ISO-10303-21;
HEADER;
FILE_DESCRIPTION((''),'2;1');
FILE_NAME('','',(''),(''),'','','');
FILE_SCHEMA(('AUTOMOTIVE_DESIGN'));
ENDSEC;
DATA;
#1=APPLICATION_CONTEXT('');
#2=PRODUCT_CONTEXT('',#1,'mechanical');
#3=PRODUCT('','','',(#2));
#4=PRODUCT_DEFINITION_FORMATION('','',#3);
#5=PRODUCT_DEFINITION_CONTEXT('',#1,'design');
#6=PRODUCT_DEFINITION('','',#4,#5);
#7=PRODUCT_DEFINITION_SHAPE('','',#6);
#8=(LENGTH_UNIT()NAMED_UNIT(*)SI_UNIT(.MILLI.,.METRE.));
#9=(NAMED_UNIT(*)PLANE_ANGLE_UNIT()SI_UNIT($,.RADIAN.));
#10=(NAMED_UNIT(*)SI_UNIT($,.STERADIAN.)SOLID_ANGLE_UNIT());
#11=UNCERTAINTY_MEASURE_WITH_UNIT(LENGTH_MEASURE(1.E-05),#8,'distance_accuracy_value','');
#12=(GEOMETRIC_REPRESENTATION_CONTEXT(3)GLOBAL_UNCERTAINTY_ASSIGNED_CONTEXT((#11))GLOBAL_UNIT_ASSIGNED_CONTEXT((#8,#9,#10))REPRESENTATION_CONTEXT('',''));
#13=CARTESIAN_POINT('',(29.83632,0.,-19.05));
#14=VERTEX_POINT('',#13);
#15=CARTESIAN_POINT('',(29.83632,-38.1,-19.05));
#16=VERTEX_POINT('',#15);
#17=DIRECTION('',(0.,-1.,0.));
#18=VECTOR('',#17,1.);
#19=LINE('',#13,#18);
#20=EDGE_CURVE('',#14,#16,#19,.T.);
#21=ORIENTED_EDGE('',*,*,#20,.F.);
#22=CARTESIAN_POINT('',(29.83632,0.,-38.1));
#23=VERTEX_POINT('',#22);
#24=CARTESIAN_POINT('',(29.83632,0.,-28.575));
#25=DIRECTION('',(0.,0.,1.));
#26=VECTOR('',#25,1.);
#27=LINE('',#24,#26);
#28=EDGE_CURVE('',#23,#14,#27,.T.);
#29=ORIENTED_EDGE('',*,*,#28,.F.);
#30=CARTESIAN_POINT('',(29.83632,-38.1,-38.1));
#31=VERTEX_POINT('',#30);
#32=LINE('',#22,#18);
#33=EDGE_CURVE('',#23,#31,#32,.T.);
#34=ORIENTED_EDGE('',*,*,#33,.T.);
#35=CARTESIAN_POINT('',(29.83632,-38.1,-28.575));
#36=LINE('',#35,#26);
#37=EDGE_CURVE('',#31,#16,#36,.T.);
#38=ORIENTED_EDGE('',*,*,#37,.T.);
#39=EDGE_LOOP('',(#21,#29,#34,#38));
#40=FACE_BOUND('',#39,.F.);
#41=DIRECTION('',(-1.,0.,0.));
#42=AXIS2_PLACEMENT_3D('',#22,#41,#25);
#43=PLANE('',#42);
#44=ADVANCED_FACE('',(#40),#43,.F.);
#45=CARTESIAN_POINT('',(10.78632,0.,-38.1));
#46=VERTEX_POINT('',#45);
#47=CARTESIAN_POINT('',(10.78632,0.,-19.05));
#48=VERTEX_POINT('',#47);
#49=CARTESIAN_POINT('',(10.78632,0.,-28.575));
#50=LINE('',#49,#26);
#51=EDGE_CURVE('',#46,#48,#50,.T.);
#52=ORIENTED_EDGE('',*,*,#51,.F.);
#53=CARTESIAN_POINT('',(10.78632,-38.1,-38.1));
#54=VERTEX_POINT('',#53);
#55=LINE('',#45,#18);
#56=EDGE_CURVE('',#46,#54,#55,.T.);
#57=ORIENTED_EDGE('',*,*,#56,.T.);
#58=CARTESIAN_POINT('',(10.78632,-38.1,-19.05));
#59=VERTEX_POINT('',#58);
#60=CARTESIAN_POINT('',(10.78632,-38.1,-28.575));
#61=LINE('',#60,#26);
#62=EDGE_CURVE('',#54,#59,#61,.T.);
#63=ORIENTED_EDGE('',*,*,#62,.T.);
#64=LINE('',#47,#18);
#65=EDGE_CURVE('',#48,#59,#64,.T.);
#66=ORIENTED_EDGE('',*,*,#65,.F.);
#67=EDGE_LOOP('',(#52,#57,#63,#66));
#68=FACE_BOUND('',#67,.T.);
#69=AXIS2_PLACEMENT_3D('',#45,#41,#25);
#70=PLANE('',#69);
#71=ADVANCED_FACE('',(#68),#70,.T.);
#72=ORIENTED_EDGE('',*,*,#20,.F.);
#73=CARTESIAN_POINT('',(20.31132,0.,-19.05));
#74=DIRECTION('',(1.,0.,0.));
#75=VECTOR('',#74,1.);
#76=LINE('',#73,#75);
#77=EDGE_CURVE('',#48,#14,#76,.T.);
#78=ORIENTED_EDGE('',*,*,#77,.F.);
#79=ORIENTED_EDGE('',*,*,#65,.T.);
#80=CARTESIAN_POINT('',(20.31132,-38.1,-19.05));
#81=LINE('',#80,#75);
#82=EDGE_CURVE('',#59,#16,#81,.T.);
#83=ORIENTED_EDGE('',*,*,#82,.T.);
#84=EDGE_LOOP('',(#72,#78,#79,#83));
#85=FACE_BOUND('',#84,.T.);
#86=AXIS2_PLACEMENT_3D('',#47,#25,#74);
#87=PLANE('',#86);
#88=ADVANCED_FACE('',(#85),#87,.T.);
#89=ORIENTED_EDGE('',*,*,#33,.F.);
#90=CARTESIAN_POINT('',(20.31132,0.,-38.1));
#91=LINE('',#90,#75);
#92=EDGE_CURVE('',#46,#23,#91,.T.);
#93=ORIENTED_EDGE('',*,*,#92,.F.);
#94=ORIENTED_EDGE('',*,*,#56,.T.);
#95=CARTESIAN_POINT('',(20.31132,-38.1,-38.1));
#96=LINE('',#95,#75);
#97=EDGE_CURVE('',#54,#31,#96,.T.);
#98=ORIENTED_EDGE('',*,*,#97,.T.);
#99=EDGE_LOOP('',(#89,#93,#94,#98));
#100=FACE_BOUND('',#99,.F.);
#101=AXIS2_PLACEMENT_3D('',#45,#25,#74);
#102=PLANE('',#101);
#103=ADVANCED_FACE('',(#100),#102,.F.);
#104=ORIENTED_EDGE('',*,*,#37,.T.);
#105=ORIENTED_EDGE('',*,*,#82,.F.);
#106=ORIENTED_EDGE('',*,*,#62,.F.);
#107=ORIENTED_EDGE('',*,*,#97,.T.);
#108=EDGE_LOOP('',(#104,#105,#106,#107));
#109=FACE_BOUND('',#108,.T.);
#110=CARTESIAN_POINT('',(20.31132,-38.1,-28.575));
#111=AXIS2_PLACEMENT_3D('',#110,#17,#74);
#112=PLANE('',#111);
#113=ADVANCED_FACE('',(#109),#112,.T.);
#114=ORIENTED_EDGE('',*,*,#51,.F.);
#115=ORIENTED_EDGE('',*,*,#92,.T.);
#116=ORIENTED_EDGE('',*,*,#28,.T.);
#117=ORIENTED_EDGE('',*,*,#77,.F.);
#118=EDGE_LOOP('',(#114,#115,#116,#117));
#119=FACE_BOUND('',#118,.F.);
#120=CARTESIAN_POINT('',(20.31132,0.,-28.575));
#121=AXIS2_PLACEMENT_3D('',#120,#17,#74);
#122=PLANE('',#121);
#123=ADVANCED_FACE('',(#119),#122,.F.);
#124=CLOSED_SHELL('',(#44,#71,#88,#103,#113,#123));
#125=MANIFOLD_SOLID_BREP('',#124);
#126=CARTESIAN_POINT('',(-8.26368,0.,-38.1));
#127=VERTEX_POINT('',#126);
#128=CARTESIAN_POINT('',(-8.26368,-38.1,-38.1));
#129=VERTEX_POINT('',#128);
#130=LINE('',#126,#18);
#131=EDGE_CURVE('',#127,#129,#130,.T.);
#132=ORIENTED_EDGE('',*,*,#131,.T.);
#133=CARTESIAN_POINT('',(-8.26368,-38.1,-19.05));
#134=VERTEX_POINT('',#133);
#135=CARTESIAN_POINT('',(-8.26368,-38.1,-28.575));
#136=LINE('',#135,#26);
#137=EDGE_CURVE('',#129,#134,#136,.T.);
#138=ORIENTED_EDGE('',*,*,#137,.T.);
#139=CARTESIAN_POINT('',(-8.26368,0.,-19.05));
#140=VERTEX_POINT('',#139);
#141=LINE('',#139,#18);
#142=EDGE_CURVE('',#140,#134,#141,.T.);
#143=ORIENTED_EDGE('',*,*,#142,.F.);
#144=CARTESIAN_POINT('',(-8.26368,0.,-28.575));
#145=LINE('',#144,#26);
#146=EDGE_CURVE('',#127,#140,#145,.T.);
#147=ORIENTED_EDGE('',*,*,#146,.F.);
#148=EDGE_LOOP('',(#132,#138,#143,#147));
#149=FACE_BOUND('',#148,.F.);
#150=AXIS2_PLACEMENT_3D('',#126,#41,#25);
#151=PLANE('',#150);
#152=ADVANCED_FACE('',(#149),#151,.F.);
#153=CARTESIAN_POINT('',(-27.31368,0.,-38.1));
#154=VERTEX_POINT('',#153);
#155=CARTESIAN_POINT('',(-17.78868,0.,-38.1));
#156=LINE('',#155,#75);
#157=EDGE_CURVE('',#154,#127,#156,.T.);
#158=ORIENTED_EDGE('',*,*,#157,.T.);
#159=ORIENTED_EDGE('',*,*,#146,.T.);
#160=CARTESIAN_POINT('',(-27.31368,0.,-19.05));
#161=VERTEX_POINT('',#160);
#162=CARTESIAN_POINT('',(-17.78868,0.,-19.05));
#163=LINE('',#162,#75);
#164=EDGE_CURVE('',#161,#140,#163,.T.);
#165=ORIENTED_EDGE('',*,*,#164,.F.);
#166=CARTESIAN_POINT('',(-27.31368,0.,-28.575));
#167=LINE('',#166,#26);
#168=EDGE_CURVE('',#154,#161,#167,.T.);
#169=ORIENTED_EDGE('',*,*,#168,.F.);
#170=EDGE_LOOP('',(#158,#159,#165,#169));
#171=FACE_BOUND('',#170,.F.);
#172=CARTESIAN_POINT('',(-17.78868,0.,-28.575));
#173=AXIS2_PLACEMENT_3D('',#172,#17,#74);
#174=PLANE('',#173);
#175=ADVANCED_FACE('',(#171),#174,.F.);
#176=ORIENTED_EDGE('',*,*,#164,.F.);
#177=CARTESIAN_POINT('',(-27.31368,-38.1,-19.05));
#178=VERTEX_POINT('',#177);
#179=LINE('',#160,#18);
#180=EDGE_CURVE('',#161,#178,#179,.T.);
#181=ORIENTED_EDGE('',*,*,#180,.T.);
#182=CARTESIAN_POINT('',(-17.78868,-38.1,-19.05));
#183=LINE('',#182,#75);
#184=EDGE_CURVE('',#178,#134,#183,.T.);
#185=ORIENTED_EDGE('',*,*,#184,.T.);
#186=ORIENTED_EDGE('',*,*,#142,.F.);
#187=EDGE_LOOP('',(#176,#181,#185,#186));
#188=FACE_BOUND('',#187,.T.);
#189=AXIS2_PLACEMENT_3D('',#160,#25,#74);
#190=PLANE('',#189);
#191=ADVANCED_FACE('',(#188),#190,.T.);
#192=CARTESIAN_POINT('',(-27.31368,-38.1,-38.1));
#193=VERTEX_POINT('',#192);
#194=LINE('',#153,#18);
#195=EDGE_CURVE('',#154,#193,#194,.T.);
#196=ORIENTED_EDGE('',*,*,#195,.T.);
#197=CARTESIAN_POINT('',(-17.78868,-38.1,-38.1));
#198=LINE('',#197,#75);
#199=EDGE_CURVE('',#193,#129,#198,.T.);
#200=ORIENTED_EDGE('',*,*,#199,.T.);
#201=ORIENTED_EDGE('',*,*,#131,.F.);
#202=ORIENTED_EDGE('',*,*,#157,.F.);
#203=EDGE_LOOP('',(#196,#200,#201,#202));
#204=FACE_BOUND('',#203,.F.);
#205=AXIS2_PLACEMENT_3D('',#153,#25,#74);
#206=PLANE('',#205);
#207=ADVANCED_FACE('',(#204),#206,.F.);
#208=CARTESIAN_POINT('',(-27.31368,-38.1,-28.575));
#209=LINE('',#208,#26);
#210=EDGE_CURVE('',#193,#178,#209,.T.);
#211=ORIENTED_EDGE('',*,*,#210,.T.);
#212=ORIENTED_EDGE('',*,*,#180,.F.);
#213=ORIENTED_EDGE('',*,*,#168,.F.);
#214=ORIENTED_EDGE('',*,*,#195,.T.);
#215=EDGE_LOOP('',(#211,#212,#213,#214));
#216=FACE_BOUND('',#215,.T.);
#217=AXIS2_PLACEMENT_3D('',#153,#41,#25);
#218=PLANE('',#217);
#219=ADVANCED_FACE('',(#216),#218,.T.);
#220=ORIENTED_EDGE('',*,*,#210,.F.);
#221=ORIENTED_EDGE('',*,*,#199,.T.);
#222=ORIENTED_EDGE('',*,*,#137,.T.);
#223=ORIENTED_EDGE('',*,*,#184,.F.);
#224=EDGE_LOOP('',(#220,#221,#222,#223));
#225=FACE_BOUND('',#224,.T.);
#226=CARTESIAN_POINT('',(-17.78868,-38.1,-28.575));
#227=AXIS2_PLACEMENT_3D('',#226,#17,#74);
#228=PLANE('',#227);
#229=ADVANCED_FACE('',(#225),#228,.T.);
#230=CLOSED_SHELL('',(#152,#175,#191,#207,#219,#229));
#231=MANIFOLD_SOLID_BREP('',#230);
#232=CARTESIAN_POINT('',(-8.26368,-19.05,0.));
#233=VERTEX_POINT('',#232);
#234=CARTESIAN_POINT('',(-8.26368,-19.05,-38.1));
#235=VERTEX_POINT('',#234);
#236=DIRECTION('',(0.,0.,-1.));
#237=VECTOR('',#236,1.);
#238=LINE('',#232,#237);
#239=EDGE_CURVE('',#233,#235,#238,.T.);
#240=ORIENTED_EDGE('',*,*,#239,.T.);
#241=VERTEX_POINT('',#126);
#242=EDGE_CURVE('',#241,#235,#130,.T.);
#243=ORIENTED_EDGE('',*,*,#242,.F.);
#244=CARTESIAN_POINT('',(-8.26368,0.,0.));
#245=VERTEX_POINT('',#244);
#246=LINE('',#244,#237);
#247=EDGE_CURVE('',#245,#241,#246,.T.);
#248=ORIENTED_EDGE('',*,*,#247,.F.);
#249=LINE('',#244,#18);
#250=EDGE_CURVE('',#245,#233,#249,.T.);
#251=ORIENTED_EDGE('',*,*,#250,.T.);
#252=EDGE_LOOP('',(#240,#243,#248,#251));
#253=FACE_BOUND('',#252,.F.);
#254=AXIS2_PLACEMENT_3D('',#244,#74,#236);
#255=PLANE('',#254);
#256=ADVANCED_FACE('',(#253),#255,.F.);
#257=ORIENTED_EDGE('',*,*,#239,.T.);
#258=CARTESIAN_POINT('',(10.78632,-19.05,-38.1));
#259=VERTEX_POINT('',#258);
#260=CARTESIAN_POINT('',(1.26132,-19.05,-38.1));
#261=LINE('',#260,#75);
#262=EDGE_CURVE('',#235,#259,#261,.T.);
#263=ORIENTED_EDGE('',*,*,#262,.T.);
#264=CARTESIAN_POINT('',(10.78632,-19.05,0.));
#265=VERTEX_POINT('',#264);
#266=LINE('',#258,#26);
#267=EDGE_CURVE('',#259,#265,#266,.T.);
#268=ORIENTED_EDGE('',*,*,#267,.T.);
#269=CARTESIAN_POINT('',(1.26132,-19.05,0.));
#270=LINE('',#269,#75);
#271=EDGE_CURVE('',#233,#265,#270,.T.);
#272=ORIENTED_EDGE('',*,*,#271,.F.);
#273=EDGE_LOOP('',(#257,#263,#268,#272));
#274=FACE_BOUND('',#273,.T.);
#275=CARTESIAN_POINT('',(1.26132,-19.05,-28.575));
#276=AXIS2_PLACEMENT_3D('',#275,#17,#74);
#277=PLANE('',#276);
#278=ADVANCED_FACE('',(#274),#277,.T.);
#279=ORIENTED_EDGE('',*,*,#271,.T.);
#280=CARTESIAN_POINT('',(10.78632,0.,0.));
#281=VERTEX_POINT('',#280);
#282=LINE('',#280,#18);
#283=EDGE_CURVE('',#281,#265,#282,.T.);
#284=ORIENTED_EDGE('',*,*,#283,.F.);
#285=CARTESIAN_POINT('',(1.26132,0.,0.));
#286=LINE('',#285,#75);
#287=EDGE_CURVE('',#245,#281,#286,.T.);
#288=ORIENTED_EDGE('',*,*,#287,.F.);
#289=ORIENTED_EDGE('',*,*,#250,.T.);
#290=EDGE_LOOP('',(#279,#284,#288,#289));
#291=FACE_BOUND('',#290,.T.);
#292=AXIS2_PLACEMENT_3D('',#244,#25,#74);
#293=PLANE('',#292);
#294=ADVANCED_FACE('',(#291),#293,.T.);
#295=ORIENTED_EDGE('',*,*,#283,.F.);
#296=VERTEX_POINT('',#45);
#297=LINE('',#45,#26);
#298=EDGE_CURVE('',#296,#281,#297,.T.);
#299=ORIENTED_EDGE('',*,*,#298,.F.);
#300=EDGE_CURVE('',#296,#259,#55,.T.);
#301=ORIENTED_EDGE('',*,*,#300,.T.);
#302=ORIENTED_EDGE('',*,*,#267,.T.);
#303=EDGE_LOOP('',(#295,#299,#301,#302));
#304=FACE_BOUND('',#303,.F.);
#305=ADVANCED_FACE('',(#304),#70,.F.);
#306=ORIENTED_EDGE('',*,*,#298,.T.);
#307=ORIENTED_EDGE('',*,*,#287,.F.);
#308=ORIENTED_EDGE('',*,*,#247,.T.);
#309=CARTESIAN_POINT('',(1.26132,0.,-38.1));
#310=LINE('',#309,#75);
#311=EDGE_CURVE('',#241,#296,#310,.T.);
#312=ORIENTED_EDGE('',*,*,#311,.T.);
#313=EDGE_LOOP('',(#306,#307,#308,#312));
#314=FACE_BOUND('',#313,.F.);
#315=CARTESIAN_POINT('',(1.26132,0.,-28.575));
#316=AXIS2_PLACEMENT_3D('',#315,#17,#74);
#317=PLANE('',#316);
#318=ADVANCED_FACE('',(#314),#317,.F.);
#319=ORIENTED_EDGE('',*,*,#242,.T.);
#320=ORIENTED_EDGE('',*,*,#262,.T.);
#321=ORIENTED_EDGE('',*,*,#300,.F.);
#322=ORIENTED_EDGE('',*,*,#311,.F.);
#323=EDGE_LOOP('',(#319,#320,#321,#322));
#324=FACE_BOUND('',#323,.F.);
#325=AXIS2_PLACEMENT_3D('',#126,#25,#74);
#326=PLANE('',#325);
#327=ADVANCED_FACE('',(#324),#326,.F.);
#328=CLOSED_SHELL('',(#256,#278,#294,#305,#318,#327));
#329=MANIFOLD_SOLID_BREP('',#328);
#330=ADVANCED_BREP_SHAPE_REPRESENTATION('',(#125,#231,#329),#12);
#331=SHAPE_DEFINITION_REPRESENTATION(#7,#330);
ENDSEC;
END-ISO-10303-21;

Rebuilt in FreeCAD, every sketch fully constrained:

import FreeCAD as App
import Part
import Sketcher

V = App.Vector
Q = App.Units.Quantity

doc = App.newDocument("Part")
params = doc.addObject("Spreadsheet::Sheet", "Params")
for row, (alias, value) in enumerate([
    ("sketch1_width", "0.75 in"),
    ("pad1_length", "1.5 in"),
    ("sketch2_height", "1.5 in"),
    ("sketch2_width", "0.75 in"),
    ("pad2_length", "0.75 in"),
], start=1):
    params.set(f"A{row}", alias)
    params.set(f"B{row}", "=" + value)
    params.setAlias(f"B{row}", alias)

body = doc.addObject("PartDesign::Body", "Body")
body.AllowCompound = True

sketch1 = doc.addObject("Sketcher::SketchObject", "Sketch")
body.addObject(sketch1)
sketch1.AttachmentSupport = (doc.XZ_Plane, [""])
sketch1.MapMode = "FlatFace"
sketch1.addGeometry([
    Part.LineSegment(V(-27, -19, 0), V(-27, -38, 0)),
    Part.LineSegment(V(-27, -38, 0), V(-8, -38, 0)),
    Part.LineSegment(V(-8, -38, 0), V(-8, -19, 0)),
    Part.LineSegment(V(-8, -19, 0), V(-27, -19, 0)),
    Part.LineSegment(V(11, -19, 0), V(11, -38, 0)),
    Part.LineSegment(V(11, -38, 0), V(30, -38, 0)),
    Part.LineSegment(V(30, -38, 0), V(30, -19, 0)),
    Part.LineSegment(V(30, -19, 0), V(11, -19, 0)),
], False)
sketch1.addConstraint([
    Sketcher.Constraint("Coincident", 0, 2, 1, 1),
    Sketcher.Constraint("Coincident", 1, 2, 2, 1),
    Sketcher.Constraint("Coincident", 2, 2, 3, 1),
    Sketcher.Constraint("Coincident", 3, 2, 0, 1),
    Sketcher.Constraint("Coincident", 4, 2, 5, 1),
    Sketcher.Constraint("Coincident", 5, 2, 6, 1),
    Sketcher.Constraint("Coincident", 6, 2, 7, 1),
    Sketcher.Constraint("Coincident", 7, 2, 4, 1),
    Sketcher.Constraint("Vertical", 0),
    Sketcher.Constraint("Horizontal", 1),
    Sketcher.Constraint("Vertical", 2),
    Sketcher.Constraint("Horizontal", 3),
    Sketcher.Constraint("Vertical", 4),
    Sketcher.Constraint("Horizontal", 5),
    Sketcher.Constraint("Vertical", 6),
    Sketcher.Constraint("Horizontal", 7),
    Sketcher.Constraint("Horizontal", 1, 2, 4, 2),
    Sketcher.Constraint("Horizontal", 3, 2, 6, 2),
    Sketcher.Constraint("Equal", 3, 5),
    Sketcher.Constraint("Equal", 7, 0),
    Sketcher.Constraint("DistanceX", 1, 1, 1, 2, Q("0.75 in")),
    Sketcher.Constraint("DistanceY", 0, 2, -1, 1, Q("1.5 in")),
    Sketcher.Constraint("DistanceX", 0, 2, 4, 2, Q("1.5 in")),
    Sketcher.Constraint("DistanceX", 0, 2, -1, 1, Q("27.31368 mm")),
])
sketch1.setExpression("Constraints[20]", "Params.sketch1_width")
pad1 = doc.addObject("PartDesign::Pad", "Pad")
body.addObject(pad1)
pad1.Profile = sketch1
pad1.setExpression("Length", "Params.pad1_length")
body2 = doc.addObject("PartDesign::Body", "Body001")

sketch2 = doc.addObject("Sketcher::SketchObject", "Sketch001")
body2.addObject(sketch2)
sketch2.AttachmentSupport = (doc.getObject("XZ_Plane001"), [""])
sketch2.MapMode = "FlatFace"
sketch2.addGeometry([
    Part.LineSegment(V(-8, -38, 0), V(11, -38, 0)),
    Part.LineSegment(V(11, -38, 0), V(11, 0, 0)),
    Part.LineSegment(V(11, 0, 0), V(-8, 0, 0)),
    Part.LineSegment(V(-8, 0, 0), V(-8, -38, 0)),
], False)
sketch2.addConstraint([
    Sketcher.Constraint("Coincident", 0, 2, 1, 1),
    Sketcher.Constraint("Coincident", 1, 2, 2, 1),
    Sketcher.Constraint("Coincident", 2, 2, 3, 1),
    Sketcher.Constraint("Coincident", 3, 2, 0, 1),
    Sketcher.Constraint("Horizontal", 0),
    Sketcher.Constraint("Vertical", 1),
    Sketcher.Constraint("Horizontal", 2),
    Sketcher.Constraint("Vertical", 3),
    Sketcher.Constraint("PointOnObject", 1, 2, -1),
    Sketcher.Constraint("DistanceY", 1, 1, 1, 2, Q("1.5 in")),
    Sketcher.Constraint("DistanceX", 0, 1, 0, 2, Q("0.75 in")),
    Sketcher.Constraint("DistanceX", -1, 1, 0, 2, Q("10.78632 mm")),
])
sketch2.setExpression("Constraints[9]", "Params.sketch2_height")
sketch2.setExpression("Constraints[10]", "Params.sketch2_width")
pad2 = doc.addObject("PartDesign::Pad", "Pad001")
body2.addObject(pad2)
pad2.Profile = sketch2
pad2.setExpression("Length", "Params.pad2_length")

doc.recompute()
